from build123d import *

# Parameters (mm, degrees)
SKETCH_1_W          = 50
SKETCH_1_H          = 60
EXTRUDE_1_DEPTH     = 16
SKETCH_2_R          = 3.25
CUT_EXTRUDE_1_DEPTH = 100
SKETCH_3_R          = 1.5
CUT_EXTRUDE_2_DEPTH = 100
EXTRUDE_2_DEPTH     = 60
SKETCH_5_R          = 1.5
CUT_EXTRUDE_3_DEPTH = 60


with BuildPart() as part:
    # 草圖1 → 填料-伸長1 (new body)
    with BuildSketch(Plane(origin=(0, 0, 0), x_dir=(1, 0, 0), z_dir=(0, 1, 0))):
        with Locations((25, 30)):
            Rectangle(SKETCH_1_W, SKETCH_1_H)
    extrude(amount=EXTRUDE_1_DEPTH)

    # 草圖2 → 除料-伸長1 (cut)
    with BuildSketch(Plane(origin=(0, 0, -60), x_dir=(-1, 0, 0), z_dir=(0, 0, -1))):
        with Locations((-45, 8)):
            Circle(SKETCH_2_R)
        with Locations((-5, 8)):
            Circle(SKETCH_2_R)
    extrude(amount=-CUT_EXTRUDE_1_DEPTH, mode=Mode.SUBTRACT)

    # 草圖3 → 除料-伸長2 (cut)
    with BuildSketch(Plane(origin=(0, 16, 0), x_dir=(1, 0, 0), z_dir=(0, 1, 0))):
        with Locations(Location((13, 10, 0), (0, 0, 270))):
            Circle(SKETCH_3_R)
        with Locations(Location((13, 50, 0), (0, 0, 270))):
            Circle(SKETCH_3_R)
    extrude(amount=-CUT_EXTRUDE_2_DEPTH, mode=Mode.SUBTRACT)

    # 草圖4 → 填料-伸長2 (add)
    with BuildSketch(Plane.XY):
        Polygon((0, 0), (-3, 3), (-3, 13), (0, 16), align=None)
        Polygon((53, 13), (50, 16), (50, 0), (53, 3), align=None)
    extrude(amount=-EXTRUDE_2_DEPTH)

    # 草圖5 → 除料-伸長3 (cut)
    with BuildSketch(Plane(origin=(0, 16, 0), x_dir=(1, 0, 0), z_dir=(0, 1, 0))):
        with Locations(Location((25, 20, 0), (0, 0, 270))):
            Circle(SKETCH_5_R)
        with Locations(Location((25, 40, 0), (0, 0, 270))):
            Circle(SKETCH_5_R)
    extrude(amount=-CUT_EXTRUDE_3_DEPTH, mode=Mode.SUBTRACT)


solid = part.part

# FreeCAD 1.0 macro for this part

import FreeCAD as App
import Part
import Sketcher
from FreeCAD import Vector


def add_polygon(sketch, points):
    """Adds a closed chain of lines whose ends are joined by coincident constraints."""
    first, n = sketch.GeometryCount, len(points)
    for a, b in zip(points, points[1:] + points[:1]):
        sketch.addGeometry(Part.LineSegment(App.Vector(*a, 0), App.Vector(*b, 0)), False)
    for i in range(n):
        sketch.addConstraint(Sketcher.Constraint("Coincident", first + i, 2, first + (i + 1) % n, 1))

doc = App.newDocument("Part")
body = doc.addObject("PartDesign::Body", "Body")

# Sketch on XZ plane
sketch1 = body.newObject("Sketcher::SketchObject", "Sketch")
sketch1.AttachmentSupport = (doc.getObject("XZ_Plane"), [""])
sketch1.MapMode = "FlatFace"
add_polygon(sketch1, [(0, -60), (0, 0), (50, 0), (50, -60)])  # lines 0-3
sketch1.addConstraint([
    Sketcher.Constraint("Vertical", 0),
    Sketcher.Constraint("Horizontal", 1),
    Sketcher.Constraint("Vertical", 2),
    Sketcher.Constraint("Horizontal", 3),
    Sketcher.Constraint("Coincident", 0, 2, -1, 1),
    Sketcher.Constraint("DistanceX", 1, 1, 1, 2, 50.0),
    Sketcher.Constraint("DistanceY", 0, 1, 0, 2, 60.0),
])
pad1 = body.newObject("PartDesign::Pad", "Pad")
pad1.Profile = sketch1
pad1.Length = 16
pad1.Reversed = True

# Sketch on XY plane
sketch2 = body.newObject("Sketcher::SketchObject", "Sketch001")
sketch2.AttachmentSupport = (doc.getObject("XY_Plane"), [""])
sketch2.MapMode = "FlatFace"
sketch2.AttachmentOffset = App.Placement(Vector(0, 0, -60), App.Rotation())
sketch2.addGeometry([
    Part.Circle(Vector(45, 8, 0), Vector(0, 0, 1), 3.2),
    Part.Circle(Vector(5, 8, 0), Vector(0, 0, 1), 3.2),
], False)
sketch2.addConstraint([
    Sketcher.Constraint("Equal", 0, 1),
    Sketcher.Constraint("Horizontal", 0, 3, 1, 3),
    Sketcher.Constraint("Diameter", 0, 6.5),
    Sketcher.Constraint("DistanceX", -1, 1, 0, 3, 45.0),
    Sketcher.Constraint("DistanceY", -1, 1, 0, 3, 8.0),
    Sketcher.Constraint("DistanceX", -1, 1, 1, 3, 5.0),
])
pocket1 = body.newObject("PartDesign::Pocket", "Pocket")
pocket1.Profile = sketch2
pocket1.Length = 100
pocket1.Reversed = True

# Sketch on XZ plane
sketch3 = body.newObject("Sketcher::SketchObject", "Sketch002")
sketch3.AttachmentSupport = (doc.getObject("XZ_Plane"), [""])
sketch3.MapMode = "FlatFace"
sketch3.AttachmentOffset = App.Placement(Vector(0, 0, -16), App.Rotation())
sketch3.addGeometry([
    Part.Circle(Vector(13, -10, 0), Vector(0, 0, 1), 1.5),
    Part.Circle(Vector(13, -50, 0), Vector(0, 0, 1), 1.5),
], False)
sketch3.addConstraint([
    Sketcher.Constraint("Equal", 0, 1),
    Sketcher.Constraint("Vertical", 0, 3, 1, 3),
    Sketcher.Constraint("Diameter", 0, 3.0),
    Sketcher.Constraint("DistanceX", -1, 1, 0, 3, 13.0),
    Sketcher.Constraint("DistanceY", 0, 3, -1, 1, 10.0),
    Sketcher.Constraint("DistanceY", 1, 3, -1, 1, 50.0),
])
pocket2 = body.newObject("PartDesign::Pocket", "Pocket001")
pocket2.Profile = sketch3
pocket2.Length = 100
pocket2.Reversed = True

# Sketch on XY plane
sketch4 = body.newObject("Sketcher::SketchObject", "Sketch003")
sketch4.AttachmentSupport = (doc.getObject("XY_Plane"), [""])
sketch4.MapMode = "FlatFace"
add_polygon(sketch4, [(-3, 3), (0, 0), (0, 16), (-3, 13)])  # lines 0-3
add_polygon(sketch4, [(53, 13), (50, 16), (50, 0), (53, 3)])  # lines 4-7
sketch4.addConstraint([
    Sketcher.Constraint("Vertical", 1),
    Sketcher.Constraint("Vertical", 3),
    Sketcher.Constraint("Vertical", 5),
    Sketcher.Constraint("Vertical", 7),
    Sketcher.Constraint("Coincident", 0, 2, -1, 1),
    Sketcher.Constraint("PointOnObject", 5, 2, -1),
    Sketcher.Constraint("Perpendicular", 0, 2),
    Sketcher.Constraint("Perpendicular", 2, 4),
    Sketcher.Constraint("Perpendicular", 4, 6),
    Sketcher.Constraint("Horizontal", 1, 2, 4, 2),
    Sketcher.Constraint("Horizontal", 3, 2, 6, 2),
    Sketcher.Constraint("Horizontal", 2, 2, 7, 2),
    Sketcher.Constraint("DistanceY", 1, 1, 1, 2, 16.0),
    Sketcher.Constraint("DistanceY", 3, 2, 3, 1, 10.0),
    Sketcher.Constraint("DistanceX", -1, 1, 4, 2, 50.0),
])
pad2 = body.newObject("PartDesign::Pad", "Pad001")
pad2.Profile = sketch4
pad2.Length = 60
pad2.Reversed = True

# Sketch on XZ plane
sketch5 = body.newObject("Sketcher::SketchObject", "Sketch004")
sketch5.AttachmentSupport = (doc.getObject("XZ_Plane"), [""])
sketch5.MapMode = "FlatFace"
sketch5.AttachmentOffset = App.Placement(Vector(0, 0, -16), App.Rotation())
sketch5.addGeometry([
    Part.Circle(Vector(25, -20, 0), Vector(0, 0, 1), 1.5),
    Part.Circle(Vector(25, -40, 0), Vector(0, 0, 1), 1.5),
], False)
sketch5.addConstraint([
    Sketcher.Constraint("Equal", 0, 1),
    Sketcher.Constraint("Vertical", 0, 3, 1, 3),
    Sketcher.Constraint("Diameter", 0, 3.0),
    Sketcher.Constraint("DistanceX", -1, 1, 0, 3, 25.0),
    Sketcher.Constraint("DistanceY", 0, 3, -1, 1, 20.0),
    Sketcher.Constraint("DistanceY", 1, 3, -1, 1, 40.0),
])
pocket3 = body.newObject("PartDesign::Pocket", "Pocket002")
pocket3.Profile = sketch5
pocket3.Length = 60
pocket3.Reversed = True

doc.recompute()
